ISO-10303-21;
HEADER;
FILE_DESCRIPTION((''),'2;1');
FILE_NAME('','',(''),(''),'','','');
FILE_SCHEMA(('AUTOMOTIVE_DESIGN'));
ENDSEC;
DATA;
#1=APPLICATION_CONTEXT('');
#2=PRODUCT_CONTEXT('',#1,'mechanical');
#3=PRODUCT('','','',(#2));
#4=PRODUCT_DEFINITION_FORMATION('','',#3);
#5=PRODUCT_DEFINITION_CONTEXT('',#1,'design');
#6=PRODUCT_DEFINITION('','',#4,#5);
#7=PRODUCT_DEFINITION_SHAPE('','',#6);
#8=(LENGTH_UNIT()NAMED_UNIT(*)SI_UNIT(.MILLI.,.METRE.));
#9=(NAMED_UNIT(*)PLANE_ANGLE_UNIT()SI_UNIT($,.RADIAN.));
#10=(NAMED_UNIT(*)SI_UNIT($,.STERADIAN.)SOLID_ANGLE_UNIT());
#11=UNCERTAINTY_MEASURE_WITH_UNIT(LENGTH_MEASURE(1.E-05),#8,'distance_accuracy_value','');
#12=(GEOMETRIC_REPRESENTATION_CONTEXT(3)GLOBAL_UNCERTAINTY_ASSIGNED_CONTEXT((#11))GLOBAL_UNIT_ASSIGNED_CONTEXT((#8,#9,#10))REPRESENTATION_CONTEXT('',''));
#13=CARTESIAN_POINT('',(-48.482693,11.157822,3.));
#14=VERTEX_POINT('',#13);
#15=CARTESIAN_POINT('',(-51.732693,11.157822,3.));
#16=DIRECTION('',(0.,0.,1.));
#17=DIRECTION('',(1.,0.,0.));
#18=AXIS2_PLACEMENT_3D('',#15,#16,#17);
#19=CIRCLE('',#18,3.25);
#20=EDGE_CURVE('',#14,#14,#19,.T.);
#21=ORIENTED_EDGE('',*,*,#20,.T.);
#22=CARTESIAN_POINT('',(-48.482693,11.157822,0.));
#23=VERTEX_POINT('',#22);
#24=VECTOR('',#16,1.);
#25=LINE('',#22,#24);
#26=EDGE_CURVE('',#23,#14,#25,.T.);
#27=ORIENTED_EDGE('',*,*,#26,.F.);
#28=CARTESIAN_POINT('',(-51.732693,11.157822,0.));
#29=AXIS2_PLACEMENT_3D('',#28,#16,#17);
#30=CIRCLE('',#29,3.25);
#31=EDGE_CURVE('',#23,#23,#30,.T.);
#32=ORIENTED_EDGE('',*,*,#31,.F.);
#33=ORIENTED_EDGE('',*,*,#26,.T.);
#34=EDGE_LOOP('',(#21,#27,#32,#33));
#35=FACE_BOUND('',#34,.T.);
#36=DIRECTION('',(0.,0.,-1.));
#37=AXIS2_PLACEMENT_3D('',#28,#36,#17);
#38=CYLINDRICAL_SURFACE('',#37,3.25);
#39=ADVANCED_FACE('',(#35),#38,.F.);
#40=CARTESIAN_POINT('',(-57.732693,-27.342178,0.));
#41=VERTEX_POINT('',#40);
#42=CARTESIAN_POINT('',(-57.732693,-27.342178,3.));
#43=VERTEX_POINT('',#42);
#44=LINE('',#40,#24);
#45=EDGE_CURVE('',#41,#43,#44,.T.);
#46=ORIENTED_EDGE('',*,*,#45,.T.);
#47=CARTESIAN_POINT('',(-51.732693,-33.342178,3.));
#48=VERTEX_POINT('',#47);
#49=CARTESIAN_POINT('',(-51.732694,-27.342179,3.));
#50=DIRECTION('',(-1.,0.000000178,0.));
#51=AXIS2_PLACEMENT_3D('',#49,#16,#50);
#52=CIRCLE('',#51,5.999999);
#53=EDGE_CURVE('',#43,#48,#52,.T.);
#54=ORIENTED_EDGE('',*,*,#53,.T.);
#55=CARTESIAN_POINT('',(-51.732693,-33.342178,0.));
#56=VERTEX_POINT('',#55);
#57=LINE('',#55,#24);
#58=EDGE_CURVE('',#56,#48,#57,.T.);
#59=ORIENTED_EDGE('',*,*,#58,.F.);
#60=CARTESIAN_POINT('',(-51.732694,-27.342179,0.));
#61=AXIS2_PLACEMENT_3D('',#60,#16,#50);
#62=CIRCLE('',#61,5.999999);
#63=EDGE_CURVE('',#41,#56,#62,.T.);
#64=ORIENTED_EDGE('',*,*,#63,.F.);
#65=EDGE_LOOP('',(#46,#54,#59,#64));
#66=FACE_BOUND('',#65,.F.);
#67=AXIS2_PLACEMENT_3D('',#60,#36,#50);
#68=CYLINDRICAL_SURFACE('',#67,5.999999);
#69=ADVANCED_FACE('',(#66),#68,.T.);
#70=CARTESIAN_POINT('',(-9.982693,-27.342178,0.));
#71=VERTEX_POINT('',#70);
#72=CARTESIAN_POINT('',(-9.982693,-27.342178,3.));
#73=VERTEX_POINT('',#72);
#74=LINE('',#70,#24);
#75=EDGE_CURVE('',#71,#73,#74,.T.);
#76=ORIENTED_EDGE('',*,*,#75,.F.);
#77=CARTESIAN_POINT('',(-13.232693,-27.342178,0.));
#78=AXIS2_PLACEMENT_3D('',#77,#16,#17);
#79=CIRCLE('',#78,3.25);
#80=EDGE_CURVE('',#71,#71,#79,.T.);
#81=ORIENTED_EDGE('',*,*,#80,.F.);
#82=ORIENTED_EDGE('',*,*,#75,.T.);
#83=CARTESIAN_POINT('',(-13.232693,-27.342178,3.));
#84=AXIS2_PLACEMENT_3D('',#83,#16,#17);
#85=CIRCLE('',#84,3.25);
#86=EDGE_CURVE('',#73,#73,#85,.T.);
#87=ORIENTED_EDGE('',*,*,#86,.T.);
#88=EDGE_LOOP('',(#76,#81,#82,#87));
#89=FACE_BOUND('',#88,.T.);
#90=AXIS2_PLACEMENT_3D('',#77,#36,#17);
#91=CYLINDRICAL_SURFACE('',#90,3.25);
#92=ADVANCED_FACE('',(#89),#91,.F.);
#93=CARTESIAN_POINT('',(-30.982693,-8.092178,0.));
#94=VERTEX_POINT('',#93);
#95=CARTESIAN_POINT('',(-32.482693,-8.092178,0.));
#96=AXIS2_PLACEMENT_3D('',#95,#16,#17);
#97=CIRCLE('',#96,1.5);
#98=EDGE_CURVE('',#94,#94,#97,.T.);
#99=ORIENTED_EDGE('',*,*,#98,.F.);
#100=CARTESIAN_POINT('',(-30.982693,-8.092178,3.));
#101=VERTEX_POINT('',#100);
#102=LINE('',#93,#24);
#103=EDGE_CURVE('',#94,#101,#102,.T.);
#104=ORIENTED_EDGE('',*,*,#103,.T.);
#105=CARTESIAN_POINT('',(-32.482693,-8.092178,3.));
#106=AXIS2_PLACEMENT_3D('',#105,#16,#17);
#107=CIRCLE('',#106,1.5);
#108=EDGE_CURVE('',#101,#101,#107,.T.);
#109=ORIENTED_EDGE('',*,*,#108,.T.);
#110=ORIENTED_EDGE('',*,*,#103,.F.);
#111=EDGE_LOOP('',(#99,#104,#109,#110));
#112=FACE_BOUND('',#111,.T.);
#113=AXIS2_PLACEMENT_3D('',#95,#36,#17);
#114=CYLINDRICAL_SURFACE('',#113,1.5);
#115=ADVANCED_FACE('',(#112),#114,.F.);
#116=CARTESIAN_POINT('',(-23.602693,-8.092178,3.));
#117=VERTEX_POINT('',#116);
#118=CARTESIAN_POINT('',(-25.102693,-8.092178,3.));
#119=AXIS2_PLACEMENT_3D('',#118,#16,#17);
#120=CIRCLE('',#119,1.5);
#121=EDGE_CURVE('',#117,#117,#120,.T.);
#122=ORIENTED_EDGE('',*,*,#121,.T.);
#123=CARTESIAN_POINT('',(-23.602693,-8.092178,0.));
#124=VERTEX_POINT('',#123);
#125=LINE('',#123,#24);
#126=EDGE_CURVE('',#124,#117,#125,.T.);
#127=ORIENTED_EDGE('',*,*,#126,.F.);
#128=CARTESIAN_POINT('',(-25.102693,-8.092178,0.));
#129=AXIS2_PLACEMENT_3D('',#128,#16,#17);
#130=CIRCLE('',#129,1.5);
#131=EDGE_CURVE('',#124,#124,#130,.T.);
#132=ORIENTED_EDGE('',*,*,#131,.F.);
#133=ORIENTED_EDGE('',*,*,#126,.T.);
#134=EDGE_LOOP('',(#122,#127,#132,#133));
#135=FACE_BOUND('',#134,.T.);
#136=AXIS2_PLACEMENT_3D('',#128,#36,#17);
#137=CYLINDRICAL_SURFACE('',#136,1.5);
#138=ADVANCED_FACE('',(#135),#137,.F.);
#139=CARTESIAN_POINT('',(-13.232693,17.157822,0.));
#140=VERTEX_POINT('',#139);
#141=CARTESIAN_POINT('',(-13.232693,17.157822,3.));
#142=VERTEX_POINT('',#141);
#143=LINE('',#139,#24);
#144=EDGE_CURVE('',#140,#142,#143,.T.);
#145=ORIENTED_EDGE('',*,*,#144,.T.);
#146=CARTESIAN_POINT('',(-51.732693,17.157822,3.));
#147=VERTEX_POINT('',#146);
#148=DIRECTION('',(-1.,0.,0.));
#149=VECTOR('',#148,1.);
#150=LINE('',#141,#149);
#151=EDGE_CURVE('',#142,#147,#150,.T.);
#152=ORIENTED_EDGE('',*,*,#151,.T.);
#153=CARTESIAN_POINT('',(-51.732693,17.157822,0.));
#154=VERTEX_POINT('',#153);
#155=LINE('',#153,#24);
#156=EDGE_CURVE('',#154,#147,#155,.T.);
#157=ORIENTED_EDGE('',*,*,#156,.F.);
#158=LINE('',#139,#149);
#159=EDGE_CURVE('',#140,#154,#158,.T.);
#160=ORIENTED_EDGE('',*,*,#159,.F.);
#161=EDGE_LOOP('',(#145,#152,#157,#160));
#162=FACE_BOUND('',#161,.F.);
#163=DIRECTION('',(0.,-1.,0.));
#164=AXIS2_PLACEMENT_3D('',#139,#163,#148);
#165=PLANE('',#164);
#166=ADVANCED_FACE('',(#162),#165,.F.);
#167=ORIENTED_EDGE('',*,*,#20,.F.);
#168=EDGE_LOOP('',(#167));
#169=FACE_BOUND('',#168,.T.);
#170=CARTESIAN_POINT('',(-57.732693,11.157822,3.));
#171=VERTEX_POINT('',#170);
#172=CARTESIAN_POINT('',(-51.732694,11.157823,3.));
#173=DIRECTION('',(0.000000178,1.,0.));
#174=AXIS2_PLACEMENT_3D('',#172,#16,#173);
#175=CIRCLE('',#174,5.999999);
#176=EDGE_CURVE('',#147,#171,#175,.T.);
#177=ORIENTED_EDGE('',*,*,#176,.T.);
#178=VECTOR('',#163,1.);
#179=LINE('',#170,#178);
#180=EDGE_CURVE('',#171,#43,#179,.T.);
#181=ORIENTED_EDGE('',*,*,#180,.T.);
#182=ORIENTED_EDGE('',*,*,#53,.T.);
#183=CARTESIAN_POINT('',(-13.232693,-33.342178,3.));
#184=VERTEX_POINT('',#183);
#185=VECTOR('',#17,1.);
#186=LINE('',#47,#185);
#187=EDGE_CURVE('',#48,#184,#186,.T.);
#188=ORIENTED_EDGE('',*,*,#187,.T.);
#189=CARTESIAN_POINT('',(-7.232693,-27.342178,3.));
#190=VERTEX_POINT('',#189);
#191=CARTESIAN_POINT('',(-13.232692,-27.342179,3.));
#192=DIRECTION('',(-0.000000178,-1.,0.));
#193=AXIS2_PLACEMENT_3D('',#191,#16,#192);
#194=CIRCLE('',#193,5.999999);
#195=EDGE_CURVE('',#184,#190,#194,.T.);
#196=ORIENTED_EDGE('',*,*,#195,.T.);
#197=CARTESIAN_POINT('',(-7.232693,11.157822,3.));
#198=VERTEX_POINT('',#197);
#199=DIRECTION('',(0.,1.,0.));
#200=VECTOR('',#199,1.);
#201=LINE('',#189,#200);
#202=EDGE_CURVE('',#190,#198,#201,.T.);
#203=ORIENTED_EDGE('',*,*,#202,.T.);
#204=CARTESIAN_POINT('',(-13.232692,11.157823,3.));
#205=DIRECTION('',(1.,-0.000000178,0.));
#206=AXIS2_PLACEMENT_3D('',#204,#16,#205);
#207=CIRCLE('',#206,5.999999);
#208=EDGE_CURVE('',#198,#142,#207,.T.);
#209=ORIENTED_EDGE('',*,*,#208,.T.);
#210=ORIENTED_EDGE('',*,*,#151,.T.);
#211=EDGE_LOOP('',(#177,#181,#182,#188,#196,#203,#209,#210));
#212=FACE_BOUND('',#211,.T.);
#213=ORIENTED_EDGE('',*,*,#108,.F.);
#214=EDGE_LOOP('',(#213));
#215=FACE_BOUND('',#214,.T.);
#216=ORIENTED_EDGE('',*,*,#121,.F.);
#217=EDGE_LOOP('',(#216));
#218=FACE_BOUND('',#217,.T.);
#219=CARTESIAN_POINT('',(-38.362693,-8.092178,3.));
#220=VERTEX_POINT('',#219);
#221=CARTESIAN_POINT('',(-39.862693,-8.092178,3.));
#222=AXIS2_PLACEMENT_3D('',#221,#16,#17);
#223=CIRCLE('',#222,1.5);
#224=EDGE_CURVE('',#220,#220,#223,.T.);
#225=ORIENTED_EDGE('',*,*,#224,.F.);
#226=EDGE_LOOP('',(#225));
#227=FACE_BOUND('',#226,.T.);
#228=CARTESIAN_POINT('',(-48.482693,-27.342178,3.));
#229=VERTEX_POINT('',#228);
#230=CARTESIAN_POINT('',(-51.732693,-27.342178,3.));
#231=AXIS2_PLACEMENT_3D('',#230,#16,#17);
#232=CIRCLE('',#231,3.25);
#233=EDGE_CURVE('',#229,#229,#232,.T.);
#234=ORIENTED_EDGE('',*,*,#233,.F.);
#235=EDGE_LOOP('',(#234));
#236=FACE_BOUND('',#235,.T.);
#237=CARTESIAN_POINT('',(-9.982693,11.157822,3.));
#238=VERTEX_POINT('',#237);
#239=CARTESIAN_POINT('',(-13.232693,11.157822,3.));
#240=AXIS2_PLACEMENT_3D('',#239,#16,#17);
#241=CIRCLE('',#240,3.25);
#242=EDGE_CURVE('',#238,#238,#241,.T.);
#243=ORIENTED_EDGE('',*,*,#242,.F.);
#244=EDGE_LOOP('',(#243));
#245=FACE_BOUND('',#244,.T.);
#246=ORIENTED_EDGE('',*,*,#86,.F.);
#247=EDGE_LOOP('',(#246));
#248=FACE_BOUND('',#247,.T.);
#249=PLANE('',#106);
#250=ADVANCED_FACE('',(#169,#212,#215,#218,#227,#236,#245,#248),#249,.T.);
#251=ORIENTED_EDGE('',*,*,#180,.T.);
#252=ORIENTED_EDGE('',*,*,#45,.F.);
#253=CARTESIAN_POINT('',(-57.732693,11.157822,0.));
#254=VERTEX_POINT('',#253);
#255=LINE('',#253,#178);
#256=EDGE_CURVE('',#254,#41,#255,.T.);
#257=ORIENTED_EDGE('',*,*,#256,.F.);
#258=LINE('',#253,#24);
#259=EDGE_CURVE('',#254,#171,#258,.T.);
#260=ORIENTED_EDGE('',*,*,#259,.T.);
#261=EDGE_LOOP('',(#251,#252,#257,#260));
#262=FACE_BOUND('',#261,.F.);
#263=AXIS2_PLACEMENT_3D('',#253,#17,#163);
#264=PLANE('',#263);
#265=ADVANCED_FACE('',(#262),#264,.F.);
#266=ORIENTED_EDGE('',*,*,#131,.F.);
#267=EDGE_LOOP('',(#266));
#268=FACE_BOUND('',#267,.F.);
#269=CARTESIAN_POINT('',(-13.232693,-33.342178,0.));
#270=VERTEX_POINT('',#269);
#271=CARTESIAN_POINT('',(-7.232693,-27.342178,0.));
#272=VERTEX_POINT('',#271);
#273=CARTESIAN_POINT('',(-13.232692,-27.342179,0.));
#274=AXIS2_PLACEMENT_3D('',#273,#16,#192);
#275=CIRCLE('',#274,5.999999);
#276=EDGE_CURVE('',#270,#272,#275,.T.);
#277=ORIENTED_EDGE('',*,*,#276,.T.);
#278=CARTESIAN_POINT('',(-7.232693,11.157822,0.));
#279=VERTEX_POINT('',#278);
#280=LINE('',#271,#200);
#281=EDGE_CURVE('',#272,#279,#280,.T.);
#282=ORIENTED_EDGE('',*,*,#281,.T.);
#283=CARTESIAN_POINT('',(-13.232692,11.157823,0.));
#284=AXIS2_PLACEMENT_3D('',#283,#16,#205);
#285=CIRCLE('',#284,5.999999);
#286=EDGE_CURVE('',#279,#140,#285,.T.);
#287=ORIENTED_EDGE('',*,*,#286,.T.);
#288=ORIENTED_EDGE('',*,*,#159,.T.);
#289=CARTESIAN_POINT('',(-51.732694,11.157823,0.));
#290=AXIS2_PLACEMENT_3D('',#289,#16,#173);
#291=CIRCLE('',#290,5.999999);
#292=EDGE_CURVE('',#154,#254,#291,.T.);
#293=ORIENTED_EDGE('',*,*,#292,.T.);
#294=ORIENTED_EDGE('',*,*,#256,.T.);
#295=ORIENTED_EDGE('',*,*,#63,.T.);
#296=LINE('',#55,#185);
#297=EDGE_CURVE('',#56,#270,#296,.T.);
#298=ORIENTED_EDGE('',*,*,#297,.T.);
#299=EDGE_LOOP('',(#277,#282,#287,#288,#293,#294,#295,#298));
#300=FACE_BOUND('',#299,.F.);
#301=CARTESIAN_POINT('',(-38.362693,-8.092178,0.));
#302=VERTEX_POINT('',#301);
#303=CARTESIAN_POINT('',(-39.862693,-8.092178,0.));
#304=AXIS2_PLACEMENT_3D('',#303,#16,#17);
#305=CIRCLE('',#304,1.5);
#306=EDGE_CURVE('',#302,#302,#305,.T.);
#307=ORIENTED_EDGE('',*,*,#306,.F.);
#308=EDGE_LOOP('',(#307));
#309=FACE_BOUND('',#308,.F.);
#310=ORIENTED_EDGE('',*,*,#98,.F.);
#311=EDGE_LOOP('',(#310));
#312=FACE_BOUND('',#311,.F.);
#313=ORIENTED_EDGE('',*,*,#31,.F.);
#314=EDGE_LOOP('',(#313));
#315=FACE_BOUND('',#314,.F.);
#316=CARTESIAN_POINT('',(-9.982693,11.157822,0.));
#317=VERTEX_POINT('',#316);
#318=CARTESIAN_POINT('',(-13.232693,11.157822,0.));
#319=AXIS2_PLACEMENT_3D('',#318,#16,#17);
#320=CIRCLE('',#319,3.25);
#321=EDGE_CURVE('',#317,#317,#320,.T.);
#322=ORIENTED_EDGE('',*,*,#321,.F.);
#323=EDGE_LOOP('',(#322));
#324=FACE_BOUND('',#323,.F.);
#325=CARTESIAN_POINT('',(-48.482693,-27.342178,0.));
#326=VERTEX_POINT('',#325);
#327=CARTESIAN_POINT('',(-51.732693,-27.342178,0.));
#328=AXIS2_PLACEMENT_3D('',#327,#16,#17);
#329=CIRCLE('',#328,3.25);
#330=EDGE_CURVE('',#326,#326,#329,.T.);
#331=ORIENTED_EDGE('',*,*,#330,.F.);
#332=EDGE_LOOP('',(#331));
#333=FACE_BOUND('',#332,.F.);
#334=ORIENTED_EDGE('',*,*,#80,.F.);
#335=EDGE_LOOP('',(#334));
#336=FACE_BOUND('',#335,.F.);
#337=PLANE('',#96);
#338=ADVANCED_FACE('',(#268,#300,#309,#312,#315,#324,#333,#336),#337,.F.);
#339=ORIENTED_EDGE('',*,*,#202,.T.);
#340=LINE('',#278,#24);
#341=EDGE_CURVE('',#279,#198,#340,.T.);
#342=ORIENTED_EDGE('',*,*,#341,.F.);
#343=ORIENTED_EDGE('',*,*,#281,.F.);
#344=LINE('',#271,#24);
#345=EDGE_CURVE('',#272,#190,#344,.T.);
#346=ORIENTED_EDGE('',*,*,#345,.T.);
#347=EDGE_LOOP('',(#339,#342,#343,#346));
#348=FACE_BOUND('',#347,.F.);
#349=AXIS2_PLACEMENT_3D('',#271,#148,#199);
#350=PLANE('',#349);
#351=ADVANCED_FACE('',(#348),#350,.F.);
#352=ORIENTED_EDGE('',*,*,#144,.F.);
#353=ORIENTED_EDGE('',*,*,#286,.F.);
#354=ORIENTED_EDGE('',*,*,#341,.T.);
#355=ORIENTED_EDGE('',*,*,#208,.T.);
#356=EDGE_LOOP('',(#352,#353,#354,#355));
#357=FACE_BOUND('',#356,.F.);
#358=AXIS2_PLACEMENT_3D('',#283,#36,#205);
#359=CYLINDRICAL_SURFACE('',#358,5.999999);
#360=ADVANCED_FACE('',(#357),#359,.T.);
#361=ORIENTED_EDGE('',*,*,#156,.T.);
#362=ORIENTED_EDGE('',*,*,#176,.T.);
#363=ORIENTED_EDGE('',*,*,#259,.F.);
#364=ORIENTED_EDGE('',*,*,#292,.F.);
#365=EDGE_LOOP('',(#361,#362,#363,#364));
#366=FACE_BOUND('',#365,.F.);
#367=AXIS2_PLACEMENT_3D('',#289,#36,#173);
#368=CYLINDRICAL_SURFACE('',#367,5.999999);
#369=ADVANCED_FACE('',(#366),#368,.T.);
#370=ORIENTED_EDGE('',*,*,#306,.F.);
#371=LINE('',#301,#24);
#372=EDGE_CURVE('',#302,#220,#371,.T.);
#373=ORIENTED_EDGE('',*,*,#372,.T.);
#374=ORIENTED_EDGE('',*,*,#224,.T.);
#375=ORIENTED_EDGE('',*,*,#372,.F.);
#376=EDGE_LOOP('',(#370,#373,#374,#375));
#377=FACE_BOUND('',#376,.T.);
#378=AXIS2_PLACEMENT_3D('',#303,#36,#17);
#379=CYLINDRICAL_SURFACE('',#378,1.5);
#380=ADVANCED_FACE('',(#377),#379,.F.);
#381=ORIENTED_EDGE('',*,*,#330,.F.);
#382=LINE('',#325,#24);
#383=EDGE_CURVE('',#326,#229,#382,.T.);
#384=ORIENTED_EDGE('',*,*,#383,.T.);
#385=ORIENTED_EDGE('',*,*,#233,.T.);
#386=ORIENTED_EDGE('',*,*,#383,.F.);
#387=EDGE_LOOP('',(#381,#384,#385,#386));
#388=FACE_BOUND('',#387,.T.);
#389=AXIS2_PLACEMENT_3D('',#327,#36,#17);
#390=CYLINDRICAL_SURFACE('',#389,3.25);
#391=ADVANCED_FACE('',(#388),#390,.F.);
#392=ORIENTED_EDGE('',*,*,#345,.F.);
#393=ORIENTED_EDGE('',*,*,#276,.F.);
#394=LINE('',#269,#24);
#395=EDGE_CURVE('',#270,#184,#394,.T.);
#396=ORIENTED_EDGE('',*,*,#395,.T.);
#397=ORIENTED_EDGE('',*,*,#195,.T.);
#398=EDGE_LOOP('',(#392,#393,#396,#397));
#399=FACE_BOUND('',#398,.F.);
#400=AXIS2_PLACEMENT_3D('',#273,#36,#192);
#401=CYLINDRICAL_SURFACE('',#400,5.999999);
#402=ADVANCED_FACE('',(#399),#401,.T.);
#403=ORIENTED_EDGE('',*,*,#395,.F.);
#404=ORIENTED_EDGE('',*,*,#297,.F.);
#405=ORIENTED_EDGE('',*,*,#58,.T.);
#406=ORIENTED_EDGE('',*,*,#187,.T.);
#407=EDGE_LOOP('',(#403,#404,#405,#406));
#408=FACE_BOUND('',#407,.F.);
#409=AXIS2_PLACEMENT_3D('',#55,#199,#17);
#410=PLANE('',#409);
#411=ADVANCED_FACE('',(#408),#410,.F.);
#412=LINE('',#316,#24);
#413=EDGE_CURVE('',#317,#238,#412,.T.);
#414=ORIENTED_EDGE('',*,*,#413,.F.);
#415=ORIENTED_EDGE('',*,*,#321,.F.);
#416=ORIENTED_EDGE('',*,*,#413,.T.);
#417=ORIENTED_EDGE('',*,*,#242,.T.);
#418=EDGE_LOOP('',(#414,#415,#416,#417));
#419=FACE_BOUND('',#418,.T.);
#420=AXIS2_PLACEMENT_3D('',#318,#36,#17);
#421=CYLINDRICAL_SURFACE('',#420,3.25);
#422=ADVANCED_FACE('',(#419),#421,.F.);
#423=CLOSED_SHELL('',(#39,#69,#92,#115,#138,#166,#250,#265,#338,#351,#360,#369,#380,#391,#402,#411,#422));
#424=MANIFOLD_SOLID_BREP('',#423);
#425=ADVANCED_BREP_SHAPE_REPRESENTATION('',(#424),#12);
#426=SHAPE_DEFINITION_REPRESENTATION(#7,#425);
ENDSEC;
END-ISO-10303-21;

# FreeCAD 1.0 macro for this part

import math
import FreeCAD as App
import Part
import Sketcher

V = App.Vector
Q = App.Units.Quantity

doc = App.newDocument("Part")
params = doc.addObject("Spreadsheet::Sheet", "Params")
for row, (alias, value) in enumerate([
    ("sketch1_diameter", "3 mm"),
    ("sketch1_radius", "5.999999 mm"),
    ("sketch1_diameter2", "6.5 mm"),
    ("sketch1_width", "38.5 mm"),
    ("pad1_length", "3 mm"),
], start=1):
    params.set(f"A{row}", alias)
    params.set(f"B{row}", "=" + value)
    params.setAlias(f"B{row}", alias)

body = doc.addObject("PartDesign::Body", "Body")

# Sketch on XY plane
sketch1 = doc.addObject("Sketcher::SketchObject", "Sketch")
body.addObject(sketch1)
sketch1.AttachmentSupport = (doc.XY_Plane, [""])
sketch1.MapMode = "FlatFace"
sketch1.addGeometry([
    Part.LineSegment(V(-13.232693, 17.157822, 0), V(-51.732693, 17.157822, 0)),  # 0
    Part.ArcOfCircle(Part.Circle(V(-51.732694, 11.157823, 0), V(0, 0, 1), 5.999999), math.radians(89.99999), math.radians(180.00001)),  # 1
    Part.LineSegment(V(-57.732693, 11.157822, 0), V(-57.732693, -27.342178, 0)),  # 2
    Part.ArcOfCircle(Part.Circle(V(-51.732694, -27.342179, 0), V(0, 0, 1), 5.999999), math.radians(179.99999), math.radians(270.00001)),  # 3
    Part.LineSegment(V(-51.732693, -33.342178, 0), V(-13.232693, -33.342178, 0)),  # 4
    Part.ArcOfCircle(Part.Circle(V(-13.232692, -27.342179, 0), V(0, 0, 1), 5.999999), math.radians(-90.00001), math.radians(0.00001)),  # 5
    Part.LineSegment(V(-7.232693, -27.342178, 0), V(-7.232693, 11.157822, 0)),  # 6
    Part.ArcOfCircle(Part.Circle(V(-13.232692, 11.157823, 0), V(0, 0, 1), 5.999999), math.radians(-0.00001), math.radians(90.00001)),  # 7
    Part.Circle(V(-51.732693, -27.342178, 0), V(0, 0, 1), 3.25),  # 8
    Part.Circle(V(-13.232693, -27.342178, 0), V(0, 0, 1), 3.25),  # 9
    Part.Circle(V(-39.862693, -8.092178, 0), V(0, 0, 1), 1.5),  # 10
    Part.Circle(V(-51.732693, 11.157822, 0), V(0, 0, 1), 3.25),  # 11
    Part.Circle(V(-32.482693, -8.092178, 0), V(0, 0, 1), 1.5),  # 12
    Part.Circle(V(-25.102693, -8.092178, 0), V(0, 0, 1), 1.5),  # 13
    Part.Circle(V(-13.232693, 11.157822, 0), V(0, 0, 1), 3.25),  # 14
], False)
sketch1.addConstraint([
    Sketcher.Constraint("Tangent", 0, 2, 1, 1),
    Sketcher.Constraint("Tangent", 1, 2, 2, 1),
    Sketcher.Constraint("Tangent", 2, 2, 3, 1),
    Sketcher.Constraint("Tangent", 3, 2, 4, 1),
    Sketcher.Constraint("Tangent", 4, 2, 5, 1),
    Sketcher.Constraint("Tangent", 5, 2, 6, 1),
    Sketcher.Constraint("Tangent", 6, 2, 7, 1),
    Sketcher.Constraint("Tangent", 7, 2, 0, 1),
    Sketcher.Constraint("Horizontal", 0),
    Sketcher.Constraint("Vertical", 2),
    Sketcher.Constraint("Horizontal", 4),
    Sketcher.Constraint("Vertical", 6),
    Sketcher.Constraint("Coincident", 8, 3, 3, 3),
    Sketcher.Constraint("Coincident", 9, 3, 5, 3),
    Sketcher.Constraint("Coincident", 11, 3, 1, 3),
    Sketcher.Constraint("Coincident", 14, 3, 7, 3),
    Sketcher.Constraint("Equal", 1, 3),
    Sketcher.Constraint("Equal", 3, 5),
    Sketcher.Constraint("Equal", 5, 7),
    Sketcher.Constraint("Equal", 8, 9),
    Sketcher.Constraint("Equal", 9, 11),
    Sketcher.Constraint("Equal", 10, 12),
    Sketcher.Constraint("Equal", 12, 13),
    Sketcher.Constraint("Equal", 11, 14),
    Sketcher.Constraint("Horizontal", 10, 3, 12, 3),
    Sketcher.Constraint("Horizontal", 12, 3, 13, 3),
    Sketcher.Constraint("Equal", 4, 2),
    Sketcher.Constraint("Diameter", 10, Q("3 mm")),
    Sketcher.Constraint("Radius", 1, Q("5.999999 mm")),
    Sketcher.Constraint("Diameter", 8, Q("6.5 mm")),
    Sketcher.Constraint("DistanceX", 0, 2, 0, 1, Q("38.5 mm")),
    Sketcher.Constraint("DistanceX", 8, 3, 10, 3, Q("11.87 mm")),
    Sketcher.Constraint("DistanceY", 8, 3, 10, 3, Q("19.25 mm")),
    Sketcher.Constraint("DistanceX", 10, 3, 12, 3, Q("7.38 mm")),
    Sketcher.Constraint("DistanceX", 12, 3, 13, 3, Q("7.38 mm")),
    Sketcher.Constraint("DistanceY", 3, 3, -1, 1, Q("27.342179 mm")),
    Sketcher.Constraint("DistanceX", 5, 3, -1, 1, Q("13.232692 mm")),
])
sketch1.setExpression("Constraints[27]", "Params.sketch1_diameter")
sketch1.setExpression("Constraints[28]", "Params.sketch1_radius")
sketch1.setExpression("Constraints[29]", "Params.sketch1_diameter2")
sketch1.setExpression("Constraints[30]", "Params.sketch1_width")
pad1 = doc.addObject("PartDesign::Pad", "Pad")
body.addObject(pad1)
pad1.Profile = sketch1
pad1.setExpression("Length", "Params.pad1_length")

doc.recompute()
